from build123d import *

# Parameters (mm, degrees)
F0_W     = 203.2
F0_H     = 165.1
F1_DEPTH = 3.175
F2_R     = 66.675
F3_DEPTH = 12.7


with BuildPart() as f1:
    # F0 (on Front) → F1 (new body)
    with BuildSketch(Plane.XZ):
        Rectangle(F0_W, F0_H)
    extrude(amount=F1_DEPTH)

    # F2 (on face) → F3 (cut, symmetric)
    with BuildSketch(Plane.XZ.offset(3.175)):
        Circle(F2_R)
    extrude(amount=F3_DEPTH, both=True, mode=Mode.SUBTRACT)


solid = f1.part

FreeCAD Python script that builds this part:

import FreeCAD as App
import Part
import Sketcher
from FreeCAD import Vector
Q = App.Units.Quantity


def add_polygon(sketch, points):
    """Adds a closed chain of lines whose ends are joined by coincident constraints."""
    first, n = sketch.GeometryCount, len(points)
    for a, b in zip(points, points[1:] + points[:1]):
        sketch.addGeometry(Part.LineSegment(App.Vector(*a, 0), App.Vector(*b, 0)), False)
    for i in range(n):
        sketch.addConstraint(Sketcher.Constraint("Coincident", first + i, 2, first + (i + 1) % n, 1))

doc = App.newDocument("Part")
body = doc.addObject("PartDesign::Body", "Body")

sketch1 = body.newObject("Sketcher::SketchObject", "Sketch")
sketch1.AttachmentSupport = (doc.getObject("XZ_Plane"), [""])
sketch1.MapMode = "FlatFace"
add_polygon(sketch1, [(-102, 83), (-102, -83), (102, -83), (102, 83)])
sketch1.addConstraint(Sketcher.Constraint("Vertical", 0))
sketch1.addConstraint(Sketcher.Constraint("Horizontal", 1))
sketch1.addConstraint(Sketcher.Constraint("Vertical", 2))
sketch1.addConstraint(Sketcher.Constraint("Horizontal", 3))
sketch1.addConstraint(Sketcher.Constraint("Symmetric", 0, 2, 2, 2, -1, 1))
sketch1.addConstraint(Sketcher.Constraint("DistanceX", 1, 1, 1, 2, Q("8 in")))
sketch1.addConstraint(Sketcher.Constraint("DistanceY", 0, 2, 0, 1, Q("6.5 in")))
pad1 = body.newObject("PartDesign::Pad", "Pad")
pad1.Profile = sketch1
pad1.Length = Q("0.125 in")

sketch2 = body.newObject("Sketcher::SketchObject", "Sketch001")
sketch2.AttachmentSupport = (doc.getObject("XZ_Plane"), [""])
sketch2.MapMode = "FlatFace"
sketch2.AttachmentOffset = App.Placement(Vector(0, 0, 0.125 * 25.4), App.Rotation())
sketch2.addGeometry(Part.Circle(Vector(0, 0, 0), Vector(0, 0, 1), 67), False)
sketch2.addConstraint(Sketcher.Constraint("Coincident", 0, 3, -1, 1))
sketch2.addConstraint(Sketcher.Constraint("Diameter", 0, Q("5.25 in")))
pocket1 = body.newObject("PartDesign::Pocket", "Pocket")
pocket1.Profile = sketch2
pocket1.Length = Q("1 in")
pocket1.Midplane = True

doc.recompute()
